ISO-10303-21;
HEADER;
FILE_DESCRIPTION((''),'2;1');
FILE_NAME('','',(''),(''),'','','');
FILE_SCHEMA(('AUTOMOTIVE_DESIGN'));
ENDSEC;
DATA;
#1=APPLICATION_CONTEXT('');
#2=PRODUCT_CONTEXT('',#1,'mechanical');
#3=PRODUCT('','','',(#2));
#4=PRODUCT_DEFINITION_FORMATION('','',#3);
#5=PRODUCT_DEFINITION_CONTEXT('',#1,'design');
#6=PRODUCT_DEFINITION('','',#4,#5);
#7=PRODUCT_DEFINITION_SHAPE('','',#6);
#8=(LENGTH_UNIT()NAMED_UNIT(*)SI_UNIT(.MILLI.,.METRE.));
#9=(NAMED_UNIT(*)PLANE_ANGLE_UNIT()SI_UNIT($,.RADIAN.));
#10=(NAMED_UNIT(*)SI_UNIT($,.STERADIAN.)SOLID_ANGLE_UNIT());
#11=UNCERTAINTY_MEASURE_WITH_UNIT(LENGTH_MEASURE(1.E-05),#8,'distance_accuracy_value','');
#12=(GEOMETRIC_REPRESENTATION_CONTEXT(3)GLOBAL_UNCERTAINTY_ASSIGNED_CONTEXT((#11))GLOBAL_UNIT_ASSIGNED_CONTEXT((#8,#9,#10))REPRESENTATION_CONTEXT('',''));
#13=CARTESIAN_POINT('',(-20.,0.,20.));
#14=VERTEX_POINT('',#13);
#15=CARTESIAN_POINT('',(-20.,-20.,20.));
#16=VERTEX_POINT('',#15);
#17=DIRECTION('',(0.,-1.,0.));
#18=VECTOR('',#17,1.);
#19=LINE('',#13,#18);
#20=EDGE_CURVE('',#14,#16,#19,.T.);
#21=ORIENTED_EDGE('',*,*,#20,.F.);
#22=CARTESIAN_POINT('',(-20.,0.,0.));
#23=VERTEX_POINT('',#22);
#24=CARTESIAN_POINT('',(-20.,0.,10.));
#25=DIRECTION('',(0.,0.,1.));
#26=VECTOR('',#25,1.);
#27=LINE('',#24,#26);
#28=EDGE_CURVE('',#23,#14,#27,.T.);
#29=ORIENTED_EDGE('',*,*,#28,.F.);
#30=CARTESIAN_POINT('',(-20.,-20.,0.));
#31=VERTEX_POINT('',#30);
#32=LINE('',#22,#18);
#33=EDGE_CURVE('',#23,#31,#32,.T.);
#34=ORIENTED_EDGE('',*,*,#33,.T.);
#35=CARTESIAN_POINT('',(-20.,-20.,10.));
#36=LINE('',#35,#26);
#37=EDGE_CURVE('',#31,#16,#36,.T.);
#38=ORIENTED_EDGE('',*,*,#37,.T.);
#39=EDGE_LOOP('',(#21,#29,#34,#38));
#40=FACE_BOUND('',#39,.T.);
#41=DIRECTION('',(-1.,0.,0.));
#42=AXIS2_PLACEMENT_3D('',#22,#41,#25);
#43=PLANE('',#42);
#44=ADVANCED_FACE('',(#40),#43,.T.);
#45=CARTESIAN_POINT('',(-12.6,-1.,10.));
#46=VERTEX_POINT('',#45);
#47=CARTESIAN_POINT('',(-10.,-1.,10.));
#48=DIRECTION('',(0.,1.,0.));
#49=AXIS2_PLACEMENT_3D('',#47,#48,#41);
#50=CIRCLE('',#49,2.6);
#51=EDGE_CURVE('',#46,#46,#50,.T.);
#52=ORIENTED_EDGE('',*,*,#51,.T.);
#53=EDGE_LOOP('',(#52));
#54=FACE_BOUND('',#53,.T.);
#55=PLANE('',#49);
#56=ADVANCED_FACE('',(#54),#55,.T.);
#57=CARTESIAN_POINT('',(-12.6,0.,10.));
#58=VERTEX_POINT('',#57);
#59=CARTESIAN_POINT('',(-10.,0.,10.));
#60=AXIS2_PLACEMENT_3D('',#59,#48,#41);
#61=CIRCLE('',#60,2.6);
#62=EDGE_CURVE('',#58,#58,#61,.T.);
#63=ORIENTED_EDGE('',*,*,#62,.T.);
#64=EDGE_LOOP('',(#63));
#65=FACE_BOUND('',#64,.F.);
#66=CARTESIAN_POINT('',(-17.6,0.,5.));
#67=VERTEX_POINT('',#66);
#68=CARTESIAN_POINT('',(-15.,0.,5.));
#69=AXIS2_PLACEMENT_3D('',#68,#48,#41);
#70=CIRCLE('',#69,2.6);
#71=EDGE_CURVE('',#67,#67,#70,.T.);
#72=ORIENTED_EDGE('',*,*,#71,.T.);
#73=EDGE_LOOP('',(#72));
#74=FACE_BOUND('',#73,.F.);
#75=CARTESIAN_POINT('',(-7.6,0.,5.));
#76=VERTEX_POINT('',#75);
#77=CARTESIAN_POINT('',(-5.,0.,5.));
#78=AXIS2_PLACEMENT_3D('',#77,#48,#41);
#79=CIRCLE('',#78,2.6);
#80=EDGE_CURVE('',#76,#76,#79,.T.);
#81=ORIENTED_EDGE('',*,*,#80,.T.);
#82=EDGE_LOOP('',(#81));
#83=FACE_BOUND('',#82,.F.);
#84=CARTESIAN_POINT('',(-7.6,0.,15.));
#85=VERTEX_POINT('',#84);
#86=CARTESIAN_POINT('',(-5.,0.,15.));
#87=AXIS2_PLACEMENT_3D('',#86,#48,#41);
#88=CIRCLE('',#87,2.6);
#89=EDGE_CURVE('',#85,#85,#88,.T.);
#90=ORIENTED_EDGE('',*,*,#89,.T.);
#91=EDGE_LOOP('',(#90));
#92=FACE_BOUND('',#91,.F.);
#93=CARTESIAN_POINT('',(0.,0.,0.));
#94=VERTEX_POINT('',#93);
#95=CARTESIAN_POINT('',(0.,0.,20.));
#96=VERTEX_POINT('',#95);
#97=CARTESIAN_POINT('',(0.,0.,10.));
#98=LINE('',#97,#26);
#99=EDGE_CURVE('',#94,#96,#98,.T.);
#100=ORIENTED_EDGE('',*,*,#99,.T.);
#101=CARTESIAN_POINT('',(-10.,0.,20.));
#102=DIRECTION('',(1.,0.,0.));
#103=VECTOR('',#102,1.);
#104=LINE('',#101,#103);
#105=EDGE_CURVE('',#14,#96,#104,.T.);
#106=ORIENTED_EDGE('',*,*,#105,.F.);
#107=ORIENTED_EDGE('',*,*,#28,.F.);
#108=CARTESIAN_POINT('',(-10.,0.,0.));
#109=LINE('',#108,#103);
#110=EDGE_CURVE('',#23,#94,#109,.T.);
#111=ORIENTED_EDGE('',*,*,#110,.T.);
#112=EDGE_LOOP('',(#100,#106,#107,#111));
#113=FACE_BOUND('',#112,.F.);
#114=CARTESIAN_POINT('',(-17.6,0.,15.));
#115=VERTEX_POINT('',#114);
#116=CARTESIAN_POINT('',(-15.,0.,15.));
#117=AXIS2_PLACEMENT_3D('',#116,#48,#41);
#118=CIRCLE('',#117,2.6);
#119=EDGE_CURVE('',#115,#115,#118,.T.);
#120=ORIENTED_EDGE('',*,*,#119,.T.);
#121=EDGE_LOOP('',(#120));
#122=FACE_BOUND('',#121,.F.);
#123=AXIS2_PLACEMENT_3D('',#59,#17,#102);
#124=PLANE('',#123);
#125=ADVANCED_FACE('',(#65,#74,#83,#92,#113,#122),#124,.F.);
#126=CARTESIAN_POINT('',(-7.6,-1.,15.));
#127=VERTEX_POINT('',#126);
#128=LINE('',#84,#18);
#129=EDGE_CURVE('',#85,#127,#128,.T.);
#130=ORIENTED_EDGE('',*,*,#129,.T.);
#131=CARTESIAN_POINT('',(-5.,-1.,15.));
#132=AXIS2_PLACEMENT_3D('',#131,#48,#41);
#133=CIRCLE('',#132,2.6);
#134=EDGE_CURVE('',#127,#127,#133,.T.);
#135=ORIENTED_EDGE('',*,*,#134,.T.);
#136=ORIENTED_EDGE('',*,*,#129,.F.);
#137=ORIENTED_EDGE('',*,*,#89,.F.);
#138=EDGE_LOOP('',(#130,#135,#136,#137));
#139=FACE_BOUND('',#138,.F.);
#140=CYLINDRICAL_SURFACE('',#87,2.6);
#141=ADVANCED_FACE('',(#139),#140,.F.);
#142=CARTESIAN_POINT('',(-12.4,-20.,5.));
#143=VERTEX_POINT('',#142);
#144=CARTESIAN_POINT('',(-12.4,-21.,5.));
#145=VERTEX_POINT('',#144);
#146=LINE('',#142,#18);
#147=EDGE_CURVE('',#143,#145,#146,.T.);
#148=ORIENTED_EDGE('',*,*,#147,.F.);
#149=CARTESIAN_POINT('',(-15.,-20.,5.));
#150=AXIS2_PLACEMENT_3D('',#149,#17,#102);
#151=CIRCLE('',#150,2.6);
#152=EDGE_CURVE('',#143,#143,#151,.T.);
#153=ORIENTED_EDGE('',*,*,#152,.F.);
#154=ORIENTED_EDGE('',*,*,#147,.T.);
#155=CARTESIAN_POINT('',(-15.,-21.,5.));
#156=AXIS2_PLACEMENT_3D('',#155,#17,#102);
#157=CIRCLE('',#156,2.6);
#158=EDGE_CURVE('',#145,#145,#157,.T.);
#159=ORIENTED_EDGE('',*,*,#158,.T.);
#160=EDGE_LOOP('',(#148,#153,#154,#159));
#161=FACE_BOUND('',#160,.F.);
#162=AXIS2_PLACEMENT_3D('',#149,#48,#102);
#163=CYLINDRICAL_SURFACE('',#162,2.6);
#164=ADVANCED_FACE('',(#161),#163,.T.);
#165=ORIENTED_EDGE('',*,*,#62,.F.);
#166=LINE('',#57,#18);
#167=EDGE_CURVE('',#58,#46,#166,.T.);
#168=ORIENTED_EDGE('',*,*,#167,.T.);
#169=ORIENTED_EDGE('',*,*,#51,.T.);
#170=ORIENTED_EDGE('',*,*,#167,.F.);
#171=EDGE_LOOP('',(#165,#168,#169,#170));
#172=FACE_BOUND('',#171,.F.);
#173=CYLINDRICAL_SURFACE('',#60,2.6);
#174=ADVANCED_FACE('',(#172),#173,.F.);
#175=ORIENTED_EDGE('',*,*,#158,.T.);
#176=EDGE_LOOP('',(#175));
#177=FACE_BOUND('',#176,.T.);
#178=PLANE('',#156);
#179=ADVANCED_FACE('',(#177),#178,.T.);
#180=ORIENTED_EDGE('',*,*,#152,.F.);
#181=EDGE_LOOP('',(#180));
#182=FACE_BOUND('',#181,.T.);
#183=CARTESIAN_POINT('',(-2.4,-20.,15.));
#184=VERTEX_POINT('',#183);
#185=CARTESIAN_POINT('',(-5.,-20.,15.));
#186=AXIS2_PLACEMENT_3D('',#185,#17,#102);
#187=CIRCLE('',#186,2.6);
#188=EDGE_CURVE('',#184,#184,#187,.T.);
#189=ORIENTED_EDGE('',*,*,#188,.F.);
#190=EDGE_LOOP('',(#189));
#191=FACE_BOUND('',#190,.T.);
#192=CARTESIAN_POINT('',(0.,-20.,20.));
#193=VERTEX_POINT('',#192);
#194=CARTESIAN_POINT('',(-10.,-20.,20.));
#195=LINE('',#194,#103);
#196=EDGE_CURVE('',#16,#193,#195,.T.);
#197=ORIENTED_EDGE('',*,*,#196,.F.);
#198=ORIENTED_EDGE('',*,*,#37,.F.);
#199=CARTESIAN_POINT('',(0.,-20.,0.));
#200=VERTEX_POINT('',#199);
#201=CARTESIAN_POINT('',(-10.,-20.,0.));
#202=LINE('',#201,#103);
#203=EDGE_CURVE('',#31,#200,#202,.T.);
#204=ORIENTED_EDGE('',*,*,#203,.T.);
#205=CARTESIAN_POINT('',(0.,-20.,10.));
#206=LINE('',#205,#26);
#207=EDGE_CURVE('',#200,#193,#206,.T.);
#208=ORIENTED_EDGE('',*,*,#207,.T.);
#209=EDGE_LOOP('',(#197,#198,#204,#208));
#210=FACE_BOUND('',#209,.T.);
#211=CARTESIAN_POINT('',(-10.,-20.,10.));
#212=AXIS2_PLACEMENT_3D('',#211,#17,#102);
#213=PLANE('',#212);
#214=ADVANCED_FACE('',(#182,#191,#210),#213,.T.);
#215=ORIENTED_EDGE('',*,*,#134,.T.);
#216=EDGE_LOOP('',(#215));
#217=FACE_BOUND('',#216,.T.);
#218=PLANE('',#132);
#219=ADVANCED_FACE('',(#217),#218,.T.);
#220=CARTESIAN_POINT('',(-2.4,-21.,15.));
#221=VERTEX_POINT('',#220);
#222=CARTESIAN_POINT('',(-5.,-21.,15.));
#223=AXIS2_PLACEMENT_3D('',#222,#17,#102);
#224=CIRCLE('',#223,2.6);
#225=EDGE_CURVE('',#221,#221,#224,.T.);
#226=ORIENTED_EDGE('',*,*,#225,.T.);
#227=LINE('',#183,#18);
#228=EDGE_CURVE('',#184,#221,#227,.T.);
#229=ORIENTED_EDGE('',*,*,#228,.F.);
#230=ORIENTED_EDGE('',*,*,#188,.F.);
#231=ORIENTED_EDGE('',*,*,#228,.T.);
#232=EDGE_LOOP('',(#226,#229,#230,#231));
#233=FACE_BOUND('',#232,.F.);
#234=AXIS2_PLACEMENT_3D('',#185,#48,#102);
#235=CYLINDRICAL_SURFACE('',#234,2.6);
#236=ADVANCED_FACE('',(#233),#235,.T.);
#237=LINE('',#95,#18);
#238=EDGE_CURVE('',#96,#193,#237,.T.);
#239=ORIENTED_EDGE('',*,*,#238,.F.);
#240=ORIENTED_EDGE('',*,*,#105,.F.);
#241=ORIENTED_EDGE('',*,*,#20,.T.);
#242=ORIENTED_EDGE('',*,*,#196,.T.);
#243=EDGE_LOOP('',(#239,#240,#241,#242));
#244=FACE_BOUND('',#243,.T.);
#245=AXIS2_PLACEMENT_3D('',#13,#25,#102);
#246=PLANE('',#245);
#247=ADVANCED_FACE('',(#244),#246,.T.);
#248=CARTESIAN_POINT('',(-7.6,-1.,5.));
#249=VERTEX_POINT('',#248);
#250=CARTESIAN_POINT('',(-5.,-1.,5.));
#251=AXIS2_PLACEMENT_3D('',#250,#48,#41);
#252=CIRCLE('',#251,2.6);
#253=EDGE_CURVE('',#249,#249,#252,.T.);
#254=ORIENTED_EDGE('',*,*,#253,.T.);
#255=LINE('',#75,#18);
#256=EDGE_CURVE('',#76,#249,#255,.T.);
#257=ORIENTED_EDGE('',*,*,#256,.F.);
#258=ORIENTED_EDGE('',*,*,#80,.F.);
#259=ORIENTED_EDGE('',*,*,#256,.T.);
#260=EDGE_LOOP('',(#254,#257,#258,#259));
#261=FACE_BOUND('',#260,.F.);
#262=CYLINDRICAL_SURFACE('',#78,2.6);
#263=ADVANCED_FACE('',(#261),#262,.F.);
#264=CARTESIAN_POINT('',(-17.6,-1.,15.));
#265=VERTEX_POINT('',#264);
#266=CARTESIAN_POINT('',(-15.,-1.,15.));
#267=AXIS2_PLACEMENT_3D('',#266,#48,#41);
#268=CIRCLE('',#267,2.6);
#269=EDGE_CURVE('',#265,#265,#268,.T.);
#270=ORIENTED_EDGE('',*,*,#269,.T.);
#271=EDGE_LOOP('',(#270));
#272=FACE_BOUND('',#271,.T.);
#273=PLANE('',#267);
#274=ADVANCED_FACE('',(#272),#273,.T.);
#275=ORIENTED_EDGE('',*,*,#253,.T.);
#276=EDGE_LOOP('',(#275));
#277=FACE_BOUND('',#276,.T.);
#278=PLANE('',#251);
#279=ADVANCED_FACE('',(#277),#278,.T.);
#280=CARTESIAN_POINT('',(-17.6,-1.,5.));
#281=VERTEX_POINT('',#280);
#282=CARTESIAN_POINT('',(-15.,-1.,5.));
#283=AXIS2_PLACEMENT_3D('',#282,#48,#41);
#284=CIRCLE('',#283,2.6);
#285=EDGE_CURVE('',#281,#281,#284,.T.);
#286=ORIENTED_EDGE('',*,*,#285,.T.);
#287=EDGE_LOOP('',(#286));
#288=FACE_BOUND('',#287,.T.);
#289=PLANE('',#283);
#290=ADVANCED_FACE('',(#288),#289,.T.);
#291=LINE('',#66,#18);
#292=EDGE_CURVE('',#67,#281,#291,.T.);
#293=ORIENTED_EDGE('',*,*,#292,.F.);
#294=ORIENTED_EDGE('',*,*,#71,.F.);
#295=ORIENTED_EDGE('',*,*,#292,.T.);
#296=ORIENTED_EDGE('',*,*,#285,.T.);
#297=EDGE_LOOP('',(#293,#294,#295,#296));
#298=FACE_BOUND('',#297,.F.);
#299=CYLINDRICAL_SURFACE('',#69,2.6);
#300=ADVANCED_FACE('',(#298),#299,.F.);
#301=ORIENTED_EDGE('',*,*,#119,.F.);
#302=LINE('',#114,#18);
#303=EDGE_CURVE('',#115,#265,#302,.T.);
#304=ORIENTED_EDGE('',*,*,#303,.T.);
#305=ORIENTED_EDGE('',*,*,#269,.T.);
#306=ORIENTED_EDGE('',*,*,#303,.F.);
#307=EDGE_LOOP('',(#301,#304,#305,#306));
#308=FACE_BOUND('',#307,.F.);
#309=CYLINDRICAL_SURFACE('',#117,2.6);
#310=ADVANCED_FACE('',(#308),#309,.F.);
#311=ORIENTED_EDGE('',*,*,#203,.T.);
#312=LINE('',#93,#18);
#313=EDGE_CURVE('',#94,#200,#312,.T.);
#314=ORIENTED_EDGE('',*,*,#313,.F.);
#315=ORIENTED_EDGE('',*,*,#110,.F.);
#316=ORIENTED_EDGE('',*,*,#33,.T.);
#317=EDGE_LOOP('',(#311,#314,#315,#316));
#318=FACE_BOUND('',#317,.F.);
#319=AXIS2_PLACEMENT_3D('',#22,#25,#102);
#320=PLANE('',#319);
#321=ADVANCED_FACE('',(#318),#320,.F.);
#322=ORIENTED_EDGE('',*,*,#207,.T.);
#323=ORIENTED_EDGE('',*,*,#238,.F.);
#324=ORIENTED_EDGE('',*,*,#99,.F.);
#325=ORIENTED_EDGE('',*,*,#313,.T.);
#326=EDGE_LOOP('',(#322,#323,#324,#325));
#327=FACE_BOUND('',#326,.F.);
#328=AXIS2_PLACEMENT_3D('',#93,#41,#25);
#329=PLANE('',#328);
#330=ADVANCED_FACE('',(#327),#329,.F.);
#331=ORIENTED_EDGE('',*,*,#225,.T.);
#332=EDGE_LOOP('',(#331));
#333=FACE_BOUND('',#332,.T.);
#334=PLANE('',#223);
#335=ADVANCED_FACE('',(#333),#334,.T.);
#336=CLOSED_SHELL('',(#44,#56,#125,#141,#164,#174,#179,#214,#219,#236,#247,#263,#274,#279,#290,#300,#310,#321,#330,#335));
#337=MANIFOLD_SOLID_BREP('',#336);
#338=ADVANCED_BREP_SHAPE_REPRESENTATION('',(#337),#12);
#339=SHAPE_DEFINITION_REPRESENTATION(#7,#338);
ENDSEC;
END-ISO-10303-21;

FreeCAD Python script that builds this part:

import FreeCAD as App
import Part
import Sketcher
Q = App.Units.Quantity

doc = App.newDocument("Part")
body = doc.addObject("PartDesign::Body", "Body")

# Sketch on XZ plane
sketch1 = body.newObject("Sketcher::SketchObject", "Sketch")
sketch1.AttachmentSupport = (doc.getObject("XZ_Plane"), [""])
sketch1.MapMode = "FlatFace"
sketch1.addGeometry([
    Part.LineSegment(App.Vector(-20, 20, 0), App.Vector(-20, 0, 0)),
    Part.LineSegment(App.Vector(-20, 0, 0), App.Vector(0, 0, 0)),
    Part.LineSegment(App.Vector(0, 0, 0), App.Vector(0, 20, 0)),
    Part.LineSegment(App.Vector(0, 20, 0), App.Vector(-20, 20, 0)),
], False)
sketch1.addConstraint([
    Sketcher.Constraint("Coincident", 0, 2, 1, 1),
    Sketcher.Constraint("Coincident", 1, 2, 2, 1),
    Sketcher.Constraint("Coincident", 2, 2, 3, 1),
    Sketcher.Constraint("Coincident", 3, 2, 0, 1),
    Sketcher.Constraint("Vertical", 0),
    Sketcher.Constraint("Horizontal", 1),
    Sketcher.Constraint("Vertical", 2),
    Sketcher.Constraint("Horizontal", 3),
    Sketcher.Constraint("Coincident", 1, 2, -1, 1),
    Sketcher.Constraint("Equal", 3, 0),
    Sketcher.Constraint("DistanceX", 1, 1, 1, 2, Q("20 mm")),
])
pad1 = body.newObject("PartDesign::Pad", "Pad")
pad1.Profile = sketch1
pad1.Length = 20

# Sketch on XZ plane
sketch2 = body.newObject("Sketcher::SketchObject", "Sketch001")
sketch2.AttachmentSupport = (doc.getObject("XZ_Plane"), [""])
sketch2.MapMode = "FlatFace"
sketch2.addGeometry([
    Part.Circle(App.Vector(-10, 10, 0), App.Vector(0, 0, 1), 2.6),  # 0
    Part.Circle(App.Vector(-5, 15, 0), App.Vector(0, 0, 1), 2.6),  # 1
    Part.Circle(App.Vector(-5, 5, 0), App.Vector(0, 0, 1), 2.6),  # 2
    Part.Circle(App.Vector(-15, 15, 0), App.Vector(0, 0, 1), 2.6),  # 3
    Part.Circle(App.Vector(-15, 5, 0), App.Vector(0, 0, 1), 2.6),  # 4
], False)
sketch2.addConstraint([
    Sketcher.Constraint("Equal", 0, 1),
    Sketcher.Constraint("Equal", 1, 2),
    Sketcher.Constraint("Equal", 2, 3),
    Sketcher.Constraint("Equal", 3, 4),
    Sketcher.Constraint("Horizontal", 1, 3, 3, 3),
    Sketcher.Constraint("Horizontal", 2, 3, 4, 3),
    Sketcher.Constraint("Vertical", 1, 3, 2, 3),
    Sketcher.Constraint("Vertical", 3, 3, 4, 3),
    Sketcher.Constraint("Diameter", 0, Q("5.2 mm")),
    Sketcher.Constraint("DistanceX", 0, 3, -1, 1, Q("10 mm")),
    Sketcher.Constraint("DistanceY", -1, 1, 0, 3, Q("10 mm")),
    Sketcher.Constraint("DistanceX", 1, 3, -1, 1, Q("5 mm")),
    Sketcher.Constraint("DistanceY", -1, 1, 1, 3, Q("15 mm")),
    Sketcher.Constraint("DistanceY", -1, 1, 2, 3, Q("5 mm")),
    Sketcher.Constraint("DistanceX", 3, 3, -1, 1, Q("15 mm")),
])
pocket1 = body.newObject("PartDesign::Pocket", "Pocket")
pocket1.Profile = sketch2
pocket1.Length = 1
pocket1.Reversed = True

# Sketch on XZ plane
sketch3 = body.newObject("Sketcher::SketchObject", "Sketch002")
sketch3.AttachmentSupport = (doc.getObject("XZ_Plane"), [""])
sketch3.MapMode = "FlatFace"
sketch3.AttachmentOffset = App.Placement(App.Vector(0, 0, 20), App.Rotation())
sketch3.addGeometry([
    Part.Circle(App.Vector(-5, 15, 0), App.Vector(0, 0, 1), 2.6),
    Part.Circle(App.Vector(-15, 5, 0), App.Vector(0, 0, 1), 2.6),
], False)
sketch3.addConstraint([
    Sketcher.Constraint("Equal", 0, 1),
    Sketcher.Constraint("Diameter", 0, Q("5.2 mm")),
    Sketcher.Constraint("DistanceX", 0, 3, -1, 1, Q("5 mm")),
    Sketcher.Constraint("DistanceY", -1, 1, 0, 3, Q("15 mm")),
    Sketcher.Constraint("DistanceX", 1, 3, -1, 1, Q("15 mm")),
    Sketcher.Constraint("DistanceY", -1, 1, 1, 3, Q("5 mm")),
])
pad2 = body.newObject("PartDesign::Pad", "Pad001")
pad2.Profile = sketch3
pad2.Length = 1

doc.recompute()
